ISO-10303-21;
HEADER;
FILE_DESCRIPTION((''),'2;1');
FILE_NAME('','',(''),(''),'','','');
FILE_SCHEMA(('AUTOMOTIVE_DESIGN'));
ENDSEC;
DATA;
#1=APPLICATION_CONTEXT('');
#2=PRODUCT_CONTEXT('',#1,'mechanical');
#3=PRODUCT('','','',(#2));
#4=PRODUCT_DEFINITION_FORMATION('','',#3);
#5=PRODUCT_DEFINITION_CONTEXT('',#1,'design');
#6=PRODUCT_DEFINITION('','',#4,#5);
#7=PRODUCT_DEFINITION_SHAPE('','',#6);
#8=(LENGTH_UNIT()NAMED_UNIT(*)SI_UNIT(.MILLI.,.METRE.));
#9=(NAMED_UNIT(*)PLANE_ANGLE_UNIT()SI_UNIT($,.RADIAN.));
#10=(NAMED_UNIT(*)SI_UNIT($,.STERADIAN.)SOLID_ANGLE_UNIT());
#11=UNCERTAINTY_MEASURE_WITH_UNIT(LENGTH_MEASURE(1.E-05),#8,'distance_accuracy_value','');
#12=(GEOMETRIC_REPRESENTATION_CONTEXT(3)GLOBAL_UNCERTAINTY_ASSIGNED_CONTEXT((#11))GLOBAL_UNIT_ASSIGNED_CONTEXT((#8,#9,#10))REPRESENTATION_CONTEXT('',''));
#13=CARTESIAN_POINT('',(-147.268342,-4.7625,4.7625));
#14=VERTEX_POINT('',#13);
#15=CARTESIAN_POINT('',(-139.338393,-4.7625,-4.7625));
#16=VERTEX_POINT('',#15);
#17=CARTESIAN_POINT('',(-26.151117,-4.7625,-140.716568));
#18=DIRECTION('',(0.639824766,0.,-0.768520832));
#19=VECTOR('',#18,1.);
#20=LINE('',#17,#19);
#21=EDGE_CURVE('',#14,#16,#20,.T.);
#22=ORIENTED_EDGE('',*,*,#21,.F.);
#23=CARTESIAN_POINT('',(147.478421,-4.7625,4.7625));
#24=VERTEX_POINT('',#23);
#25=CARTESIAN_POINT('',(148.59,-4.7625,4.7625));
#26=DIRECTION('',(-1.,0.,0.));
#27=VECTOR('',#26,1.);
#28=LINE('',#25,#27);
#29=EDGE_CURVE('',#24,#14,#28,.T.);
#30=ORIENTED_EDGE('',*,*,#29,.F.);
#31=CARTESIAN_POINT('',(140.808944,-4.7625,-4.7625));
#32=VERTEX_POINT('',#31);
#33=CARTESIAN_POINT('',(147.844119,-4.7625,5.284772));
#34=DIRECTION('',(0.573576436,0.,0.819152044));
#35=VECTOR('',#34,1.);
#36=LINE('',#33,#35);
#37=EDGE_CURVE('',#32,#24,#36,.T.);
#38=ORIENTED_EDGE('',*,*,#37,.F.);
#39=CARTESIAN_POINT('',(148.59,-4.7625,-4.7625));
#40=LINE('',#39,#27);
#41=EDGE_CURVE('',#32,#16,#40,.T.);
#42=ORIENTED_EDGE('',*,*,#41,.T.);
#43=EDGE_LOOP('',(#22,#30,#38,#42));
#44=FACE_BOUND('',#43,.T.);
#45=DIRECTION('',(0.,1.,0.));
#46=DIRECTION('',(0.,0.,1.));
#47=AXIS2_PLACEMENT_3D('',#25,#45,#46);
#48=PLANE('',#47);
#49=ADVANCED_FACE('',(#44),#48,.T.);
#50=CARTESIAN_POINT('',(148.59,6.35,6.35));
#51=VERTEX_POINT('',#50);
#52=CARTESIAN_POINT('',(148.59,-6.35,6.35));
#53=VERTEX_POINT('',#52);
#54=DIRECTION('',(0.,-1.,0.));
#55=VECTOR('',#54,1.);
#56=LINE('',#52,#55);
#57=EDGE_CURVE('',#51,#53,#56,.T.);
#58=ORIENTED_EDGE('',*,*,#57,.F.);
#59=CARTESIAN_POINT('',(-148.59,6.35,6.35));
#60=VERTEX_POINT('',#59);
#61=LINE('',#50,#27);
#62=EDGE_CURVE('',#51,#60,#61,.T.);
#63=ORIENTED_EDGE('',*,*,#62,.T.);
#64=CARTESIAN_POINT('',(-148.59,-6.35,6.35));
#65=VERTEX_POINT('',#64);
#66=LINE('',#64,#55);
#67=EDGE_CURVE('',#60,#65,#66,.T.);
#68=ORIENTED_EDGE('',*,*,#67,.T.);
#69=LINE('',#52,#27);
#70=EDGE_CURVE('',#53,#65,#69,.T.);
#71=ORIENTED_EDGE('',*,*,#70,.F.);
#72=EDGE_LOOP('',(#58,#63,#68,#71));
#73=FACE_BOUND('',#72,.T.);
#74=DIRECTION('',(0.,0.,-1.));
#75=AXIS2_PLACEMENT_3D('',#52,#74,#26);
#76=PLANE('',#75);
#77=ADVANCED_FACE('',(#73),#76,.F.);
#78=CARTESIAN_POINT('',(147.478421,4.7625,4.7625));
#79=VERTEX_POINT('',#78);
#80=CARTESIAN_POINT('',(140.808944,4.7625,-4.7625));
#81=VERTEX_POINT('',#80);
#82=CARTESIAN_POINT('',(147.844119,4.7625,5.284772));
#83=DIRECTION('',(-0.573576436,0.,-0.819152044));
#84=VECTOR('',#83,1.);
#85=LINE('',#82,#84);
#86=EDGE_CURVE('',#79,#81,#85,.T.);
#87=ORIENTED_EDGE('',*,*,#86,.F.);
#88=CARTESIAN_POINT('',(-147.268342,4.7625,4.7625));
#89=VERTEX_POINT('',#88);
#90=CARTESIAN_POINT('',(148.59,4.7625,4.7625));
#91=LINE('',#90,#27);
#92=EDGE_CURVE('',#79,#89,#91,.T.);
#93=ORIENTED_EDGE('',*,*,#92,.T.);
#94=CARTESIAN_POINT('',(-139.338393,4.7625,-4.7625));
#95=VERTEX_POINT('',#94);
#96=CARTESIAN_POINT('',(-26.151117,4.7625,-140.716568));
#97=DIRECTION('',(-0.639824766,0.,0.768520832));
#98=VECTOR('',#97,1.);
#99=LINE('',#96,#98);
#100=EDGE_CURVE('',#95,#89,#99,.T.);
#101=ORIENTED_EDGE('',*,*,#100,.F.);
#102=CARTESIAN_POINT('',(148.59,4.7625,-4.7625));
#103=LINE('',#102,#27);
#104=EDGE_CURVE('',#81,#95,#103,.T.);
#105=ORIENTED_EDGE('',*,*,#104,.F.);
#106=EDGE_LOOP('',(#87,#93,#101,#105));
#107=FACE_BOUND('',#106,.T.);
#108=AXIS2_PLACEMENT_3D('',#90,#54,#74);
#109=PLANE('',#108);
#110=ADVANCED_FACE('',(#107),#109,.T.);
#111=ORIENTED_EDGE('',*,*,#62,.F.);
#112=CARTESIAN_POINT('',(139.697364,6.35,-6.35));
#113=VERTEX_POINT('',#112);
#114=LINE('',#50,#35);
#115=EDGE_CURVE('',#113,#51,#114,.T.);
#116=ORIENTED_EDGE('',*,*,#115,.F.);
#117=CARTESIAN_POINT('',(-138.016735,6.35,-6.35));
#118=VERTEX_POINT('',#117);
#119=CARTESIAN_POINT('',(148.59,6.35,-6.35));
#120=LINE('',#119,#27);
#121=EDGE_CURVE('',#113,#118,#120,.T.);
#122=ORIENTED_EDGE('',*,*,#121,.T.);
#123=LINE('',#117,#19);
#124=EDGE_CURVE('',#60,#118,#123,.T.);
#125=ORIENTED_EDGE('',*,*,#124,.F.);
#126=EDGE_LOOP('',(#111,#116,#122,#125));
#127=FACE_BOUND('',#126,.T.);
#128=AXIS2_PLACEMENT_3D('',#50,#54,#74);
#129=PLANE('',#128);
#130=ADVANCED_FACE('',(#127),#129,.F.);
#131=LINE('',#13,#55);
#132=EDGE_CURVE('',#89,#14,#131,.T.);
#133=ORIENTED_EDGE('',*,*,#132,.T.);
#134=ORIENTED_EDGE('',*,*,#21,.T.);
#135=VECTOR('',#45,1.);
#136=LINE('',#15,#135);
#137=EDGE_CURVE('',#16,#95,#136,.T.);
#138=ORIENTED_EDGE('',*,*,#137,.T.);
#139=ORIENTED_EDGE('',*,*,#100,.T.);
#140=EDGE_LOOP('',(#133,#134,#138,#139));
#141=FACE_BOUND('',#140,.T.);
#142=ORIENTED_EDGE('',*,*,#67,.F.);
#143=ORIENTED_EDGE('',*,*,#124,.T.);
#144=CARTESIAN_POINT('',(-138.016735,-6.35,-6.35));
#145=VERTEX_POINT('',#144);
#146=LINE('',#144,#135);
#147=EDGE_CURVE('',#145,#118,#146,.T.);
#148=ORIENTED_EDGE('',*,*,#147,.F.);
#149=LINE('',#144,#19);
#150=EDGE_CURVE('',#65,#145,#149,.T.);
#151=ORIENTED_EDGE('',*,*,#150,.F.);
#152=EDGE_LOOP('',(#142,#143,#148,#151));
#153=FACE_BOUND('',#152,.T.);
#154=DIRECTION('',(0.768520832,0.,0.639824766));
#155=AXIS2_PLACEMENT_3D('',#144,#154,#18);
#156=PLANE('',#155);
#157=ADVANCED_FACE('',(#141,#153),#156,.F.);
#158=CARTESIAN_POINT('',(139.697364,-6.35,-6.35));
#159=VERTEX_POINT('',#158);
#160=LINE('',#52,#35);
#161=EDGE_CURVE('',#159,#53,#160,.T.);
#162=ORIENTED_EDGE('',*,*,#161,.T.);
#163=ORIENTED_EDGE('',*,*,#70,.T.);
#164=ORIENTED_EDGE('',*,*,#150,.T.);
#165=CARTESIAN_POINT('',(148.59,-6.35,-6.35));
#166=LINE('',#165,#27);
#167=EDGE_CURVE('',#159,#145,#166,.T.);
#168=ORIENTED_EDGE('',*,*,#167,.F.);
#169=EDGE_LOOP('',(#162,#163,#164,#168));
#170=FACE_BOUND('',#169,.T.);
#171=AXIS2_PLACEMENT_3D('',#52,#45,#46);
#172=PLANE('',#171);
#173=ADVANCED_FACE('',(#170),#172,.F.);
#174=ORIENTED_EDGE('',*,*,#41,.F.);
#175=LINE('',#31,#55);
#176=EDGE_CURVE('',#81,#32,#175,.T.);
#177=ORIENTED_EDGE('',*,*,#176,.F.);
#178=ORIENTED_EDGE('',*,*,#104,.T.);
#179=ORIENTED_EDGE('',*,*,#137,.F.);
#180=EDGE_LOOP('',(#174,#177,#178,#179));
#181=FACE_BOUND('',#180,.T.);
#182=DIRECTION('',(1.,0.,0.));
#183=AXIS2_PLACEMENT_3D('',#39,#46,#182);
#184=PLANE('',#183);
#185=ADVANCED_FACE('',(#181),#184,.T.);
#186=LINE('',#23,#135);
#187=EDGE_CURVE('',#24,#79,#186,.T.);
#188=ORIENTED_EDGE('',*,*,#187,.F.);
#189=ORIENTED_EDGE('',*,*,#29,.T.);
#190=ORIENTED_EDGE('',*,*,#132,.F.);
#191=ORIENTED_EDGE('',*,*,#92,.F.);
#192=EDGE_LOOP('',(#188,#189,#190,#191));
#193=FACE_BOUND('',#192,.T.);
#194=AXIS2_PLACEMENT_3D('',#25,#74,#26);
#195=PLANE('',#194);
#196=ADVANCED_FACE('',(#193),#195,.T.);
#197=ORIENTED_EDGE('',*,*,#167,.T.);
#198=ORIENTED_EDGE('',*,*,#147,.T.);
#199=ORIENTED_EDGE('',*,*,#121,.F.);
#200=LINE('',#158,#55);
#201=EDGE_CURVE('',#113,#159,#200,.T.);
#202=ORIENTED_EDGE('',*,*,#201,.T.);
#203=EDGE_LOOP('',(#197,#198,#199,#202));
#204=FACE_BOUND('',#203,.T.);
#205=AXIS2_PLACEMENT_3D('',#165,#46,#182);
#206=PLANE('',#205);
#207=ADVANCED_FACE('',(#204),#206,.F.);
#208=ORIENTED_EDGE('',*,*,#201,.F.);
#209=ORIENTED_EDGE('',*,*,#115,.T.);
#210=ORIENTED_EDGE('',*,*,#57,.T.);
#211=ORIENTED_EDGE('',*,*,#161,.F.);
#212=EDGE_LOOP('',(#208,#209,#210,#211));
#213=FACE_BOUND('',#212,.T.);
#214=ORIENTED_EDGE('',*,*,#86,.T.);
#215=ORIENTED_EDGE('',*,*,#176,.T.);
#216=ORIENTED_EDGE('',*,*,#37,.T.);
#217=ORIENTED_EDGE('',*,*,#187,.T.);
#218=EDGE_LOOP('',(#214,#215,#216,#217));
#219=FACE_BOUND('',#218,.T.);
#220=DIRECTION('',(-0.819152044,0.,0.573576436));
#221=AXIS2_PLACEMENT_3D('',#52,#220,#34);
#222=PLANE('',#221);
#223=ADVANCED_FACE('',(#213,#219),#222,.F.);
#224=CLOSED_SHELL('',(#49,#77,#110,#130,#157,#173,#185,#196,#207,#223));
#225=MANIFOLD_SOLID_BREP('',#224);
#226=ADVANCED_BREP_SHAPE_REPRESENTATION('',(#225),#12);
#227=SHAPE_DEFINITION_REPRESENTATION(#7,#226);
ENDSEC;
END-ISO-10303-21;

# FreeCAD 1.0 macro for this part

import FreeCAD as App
import Part
import Sketcher

V = App.Vector
Q = App.Units.Quantity


def add_polygon(sketch, points):
    """Adds a closed chain of lines whose ends are joined by coincident constraints."""
    first, n = sketch.GeometryCount, len(points)
    for a, b in zip(points, points[1:] + points[:1]):
        sketch.addGeometry(Part.LineSegment(App.Vector(*a, 0), App.Vector(*b, 0)), False)
    for i in range(n):
        sketch.addConstraint(Sketcher.Constraint("Coincident", first + i, 2, first + (i + 1) % n, 1))

doc = App.newDocument("Part")
body = doc.addObject("PartDesign::Body", "Body")

# Sketch on YZ plane
sketch1 = body.newObject("Sketcher::SketchObject", "Sketch")
sketch1.AttachmentSupport = (doc.getObject("YZ_Plane"), [""])
sketch1.MapMode = "FlatFace"
add_polygon(sketch1, [(6, 6), (-6, 6), (-6, -6), (6, -6)])  # lines 0-3
add_polygon(sketch1, [(-5, -5), (-5, 5), (5, 5), (5, -5)])  # lines 4-7
sketch1.addConstraint([
    Sketcher.Constraint("Horizontal", 0),
    Sketcher.Constraint("Vertical", 1),
    Sketcher.Constraint("Horizontal", 2),
    Sketcher.Constraint("Vertical", 3),
    Sketcher.Constraint("Vertical", 4),
    Sketcher.Constraint("Horizontal", 5),
    Sketcher.Constraint("Vertical", 6),
    Sketcher.Constraint("Horizontal", 7),
    Sketcher.Constraint("Symmetric", 0, 2, 2, 2, -1, 1),
    Sketcher.Constraint("Symmetric", 4, 2, 6, 2, -1, 1),
    Sketcher.Constraint("Equal", 2, 1),
    Sketcher.Constraint("Equal", 7, 4),
    Sketcher.Constraint("DistanceX", 0, 2, 0, 1, Q("0.5 in")),
    Sketcher.Constraint("DistanceX", 5, 1, 5, 2, Q("0.375 in")),
])
pad1 = body.newObject("PartDesign::Pad", "Pad")
pad1.Profile = sketch1
pad1.Length = Q("11.7 in")
pad1.Midplane = True

# Sketch on XZ plane
sketch2 = body.newObject("Sketcher::SketchObject", "Sketch001")
sketch2.AttachmentSupport = (doc.getObject("XZ_Plane"), [""])
sketch2.MapMode = "FlatFace"
add_polygon(sketch2, [(125, -27), (149, 6), (149, -27)])  # lines 0-2
sketch2.addConstraint([
    Sketcher.Constraint("Vertical", 1),
    Sketcher.Constraint("Horizontal", 2),
    Sketcher.Constraint("Angle", 0, Q("55 deg")),
    Sketcher.Constraint("DistanceX", -1, 1, 0, 2, Q("5.85 in")),
    Sketcher.Constraint("DistanceY", -1, 1, 0, 2, Q("0.25 in")),
    Sketcher.Constraint("DistanceX", 2, 2, 2, 1, Q("23.24368 mm")),
])
pocket1 = body.newObject("PartDesign::Pocket", "Pocket")
pocket1.Profile = sketch2
pocket1.Type = "ThroughAll"
pocket1.Midplane = True

# Sketch on XZ plane
sketch3 = body.newObject("Sketcher::SketchObject", "Sketch002")
sketch3.AttachmentSupport = (doc.getObject("XZ_Plane"), [""])
sketch3.MapMode = "FlatFace"
add_polygon(sketch3, [(-149, 6), (-138, -6), (-149, -6)])  # lines 0-2
sketch3.addConstraint([
    Sketcher.Constraint("Horizontal", 1),
    Sketcher.Constraint("Vertical", 2),
    Sketcher.Constraint("DistanceY", 2, 1, 2, 2, Q("0.5 in")),
    Sketcher.Constraint("DistanceY", 0, 2, -1, 1, Q("0.25 in")),
    Sketcher.Constraint("DistanceX", 1, 2, -1, 1, Q("5.85 in")),
    Sketcher.Constraint("Distance", 0, Q("16.525251 mm")),
])
pocket2 = body.newObject("PartDesign::Pocket", "Pocket001")
pocket2.Profile = sketch3
pocket2.Type = "ThroughAll"
pocket2.Midplane = True

doc.recompute()
